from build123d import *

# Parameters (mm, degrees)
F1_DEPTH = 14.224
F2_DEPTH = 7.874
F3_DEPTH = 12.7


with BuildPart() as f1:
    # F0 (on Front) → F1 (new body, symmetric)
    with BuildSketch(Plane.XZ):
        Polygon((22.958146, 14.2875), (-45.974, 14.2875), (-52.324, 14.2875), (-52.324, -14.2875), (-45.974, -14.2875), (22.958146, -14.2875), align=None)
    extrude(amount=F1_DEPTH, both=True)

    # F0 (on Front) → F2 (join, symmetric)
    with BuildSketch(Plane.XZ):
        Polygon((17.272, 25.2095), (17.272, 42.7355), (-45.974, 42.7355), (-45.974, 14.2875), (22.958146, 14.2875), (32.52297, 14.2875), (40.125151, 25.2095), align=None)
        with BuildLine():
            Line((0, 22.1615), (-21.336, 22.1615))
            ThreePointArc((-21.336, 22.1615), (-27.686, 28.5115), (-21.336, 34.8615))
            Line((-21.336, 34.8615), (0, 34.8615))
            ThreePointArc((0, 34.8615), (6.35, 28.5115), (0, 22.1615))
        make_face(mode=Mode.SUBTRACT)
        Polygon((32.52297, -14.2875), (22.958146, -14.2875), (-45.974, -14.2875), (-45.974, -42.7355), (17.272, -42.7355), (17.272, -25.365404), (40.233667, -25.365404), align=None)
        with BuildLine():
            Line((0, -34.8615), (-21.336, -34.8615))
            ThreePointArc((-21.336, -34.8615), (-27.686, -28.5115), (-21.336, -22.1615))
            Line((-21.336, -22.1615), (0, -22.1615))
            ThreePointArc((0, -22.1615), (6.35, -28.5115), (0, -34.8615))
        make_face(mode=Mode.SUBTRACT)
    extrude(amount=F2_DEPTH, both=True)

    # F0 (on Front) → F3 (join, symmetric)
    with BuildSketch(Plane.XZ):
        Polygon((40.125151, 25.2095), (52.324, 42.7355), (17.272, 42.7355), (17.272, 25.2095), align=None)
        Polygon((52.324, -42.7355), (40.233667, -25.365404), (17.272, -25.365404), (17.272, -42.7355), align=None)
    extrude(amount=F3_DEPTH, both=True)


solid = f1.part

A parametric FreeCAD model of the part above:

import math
import FreeCAD as App
import Part
import Sketcher
from FreeCAD import Vector
Q = App.Units.Quantity

doc = App.newDocument("Part")
body = doc.addObject("PartDesign::Body", "Body")

# Sketch on XZ plane
sketch1 = doc.addObject("Sketcher::SketchObject", "Sketch")
body.addObject(sketch1)
sketch1.AttachmentSupport = (doc.XZ_Plane, [""])
sketch1.MapMode = "FlatFace"
sketch1.addGeometry([
    Part.LineSegment(Vector(23, 14, 0), Vector(-52, 14, 0)),
    Part.LineSegment(Vector(-52, 14, 0), Vector(-52, -14, 0)),
    Part.LineSegment(Vector(-52, -14, 0), Vector(23, -14, 0)),
    Part.LineSegment(Vector(23, -14, 0), Vector(23, 14, 0)),
], False)
sketch1.addConstraint([
    Sketcher.Constraint("Coincident", 0, 2, 1, 1),
    Sketcher.Constraint("Coincident", 1, 2, 2, 1),
    Sketcher.Constraint("Coincident", 2, 2, 3, 1),
    Sketcher.Constraint("Coincident", 3, 2, 0, 1),
    Sketcher.Constraint("Horizontal", 0),
    Sketcher.Constraint("Vertical", 1),
    Sketcher.Constraint("Horizontal", 2),
    Sketcher.Constraint("Vertical", 3),
    Sketcher.Constraint("DistanceY", 1, 2, 1, 1, Q("1.125 in")),
    Sketcher.Constraint("DistanceX", 0, 2, -1, 1, Q("2.06 in")),
    Sketcher.Constraint("DistanceY", -1, 1, 0, 2, Q("0.5625 in")),
    Sketcher.Constraint("DistanceX", 0, 2, 0, 1, 75.282146),
])
pad1 = doc.addObject("PartDesign::Pad", "Pad")
body.addObject(pad1)
pad1.Profile = sketch1
pad1.Length = Q("1.12 in")
pad1.Midplane = True

# Sketch on XZ plane
sketch2 = doc.addObject("Sketcher::SketchObject", "Sketch001")
body.addObject(sketch2)
sketch2.AttachmentSupport = (doc.XZ_Plane, [""])
sketch2.MapMode = "FlatFace"
sketch2.addGeometry([
    Part.LineSegment(Vector(17, 25, 0), Vector(17, 43, 0)),  # 0
    Part.LineSegment(Vector(17, 43, 0), Vector(-46, 43, 0)),  # 1
    Part.LineSegment(Vector(-46, 43, 0), Vector(-46, 14, 0)),  # 2
    Part.LineSegment(Vector(-46, 14, 0), Vector(33, 14, 0)),  # 3
    Part.LineSegment(Vector(33, 14, 0), Vector(40, 25, 0)),  # 4
    Part.LineSegment(Vector(40, 25, 0), Vector(17, 25, 0)),  # 5
    Part.ArcOfCircle(Part.Circle(Vector(0, 29, 0), Vector(0, 0, 1), 6), math.radians(-90), math.radians(90)),  # 6
    Part.LineSegment(Vector(0, 22, 0), Vector(-21, 22, 0)),  # 7
    Part.ArcOfCircle(Part.Circle(Vector(-21, 29, 0), Vector(0, 0, 1), 6), math.radians(90), math.radians(270)),  # 8
    Part.LineSegment(Vector(-21, 35, 0), Vector(0, 35, 0)),  # 9
    Part.LineSegment(Vector(33, -14, 0), Vector(-46, -14, 0)),  # 10
    Part.LineSegment(Vector(-46, -14, 0), Vector(-46, -43, 0)),  # 11
    Part.LineSegment(Vector(-46, -43, 0), Vector(17, -43, 0)),  # 12
    Part.LineSegment(Vector(17, -43, 0), Vector(17, -25, 0)),  # 13
    Part.LineSegment(Vector(17, -25, 0), Vector(40, -25, 0)),  # 14
    Part.LineSegment(Vector(40, -25, 0), Vector(33, -14, 0)),  # 15
    Part.ArcOfCircle(Part.Circle(Vector(0, -29, 0), Vector(0, 0, 1), 6), math.radians(-90), math.radians(90)),  # 16
    Part.LineSegment(Vector(0, -35, 0), Vector(-21, -35, 0)),  # 17
    Part.ArcOfCircle(Part.Circle(Vector(-21, -29, 0), Vector(0, 0, 1), 6), math.radians(90), math.radians(270)),  # 18
    Part.LineSegment(Vector(-21, -22, 0), Vector(0, -22, 0)),  # 19
], False)
sketch2.addConstraint([
    Sketcher.Constraint("Coincident", 0, 2, 1, 1),
    Sketcher.Constraint("Coincident", 1, 2, 2, 1),
    Sketcher.Constraint("Coincident", 2, 2, 3, 1),
    Sketcher.Constraint("Coincident", 3, 2, 4, 1),
    Sketcher.Constraint("Coincident", 4, 2, 5, 1),
    Sketcher.Constraint("Coincident", 5, 2, 0, 1),
    Sketcher.Constraint("Tangent", 6, 1, 7, 1),
    Sketcher.Constraint("Tangent", 7, 2, 8, 2),
    Sketcher.Constraint("Tangent", 8, 1, 9, 1),
    Sketcher.Constraint("Tangent", 9, 2, 6, 2),
    Sketcher.Constraint("Coincident", 10, 2, 11, 1),
    Sketcher.Constraint("Coincident", 11, 2, 12, 1),
    Sketcher.Constraint("Coincident", 12, 2, 13, 1),
    Sketcher.Constraint("Coincident", 13, 2, 14, 1),
    Sketcher.Constraint("Coincident", 14, 2, 15, 1),
    Sketcher.Constraint("Coincident", 15, 2, 10, 1),
    Sketcher.Constraint("Tangent", 16, 1, 17, 1),
    Sketcher.Constraint("Tangent", 17, 2, 18, 2),
    Sketcher.Constraint("Tangent", 18, 1, 19, 1),
    Sketcher.Constraint("Tangent", 19, 2, 16, 2),
    Sketcher.Constraint("Vertical", 0),
    Sketcher.Constraint("Horizontal", 1),
    Sketcher.Constraint("Vertical", 2),
    Sketcher.Constraint("Horizontal", 3),
    Sketcher.Constraint("Horizontal", 5),
    Sketcher.Constraint("Horizontal", 7),
    Sketcher.Constraint("Horizontal", 9),
    Sketcher.Constraint("Horizontal", 10),
    Sketcher.Constraint("Vertical", 11),
    Sketcher.Constraint("Horizontal", 12),
    Sketcher.Constraint("Vertical", 13),
    Sketcher.Constraint("Horizontal", 14),
    Sketcher.Constraint("Horizontal", 17),
    Sketcher.Constraint("Horizontal", 19),
    Sketcher.Constraint("Equal", 8, 16),
    Sketcher.Constraint("Symmetric", 6, 3, 16, 3, -1, 1),
    Sketcher.Constraint("Symmetric", 2, 2, 10, 2, -1),
    Sketcher.Constraint("Symmetric", 0, 2, 12, 2, -1),
    Sketcher.Constraint("PointOnObject", 6, 3, -2),
    Sketcher.Constraint("Vertical", 8, 3, 18, 3),
    Sketcher.Constraint("Vertical", 3, 2, 15, 2),
    Sketcher.Constraint("Radius", 6, Q("0.25 in")),
    Sketcher.Constraint("DistanceX", 1, 2, 1, 1, Q("2.49 in")),
    Sketcher.Constraint("DistanceX", 7, 2, 7, 1, Q("0.84 in")),
    Sketcher.Constraint("DistanceY", 0, 1, 0, 2, Q("0.69 in")),
    Sketcher.Constraint("DistanceY", 2, 2, 2, 1, Q("1.12 in")),
    Sketcher.Constraint("DistanceX", -1, 1, 0, 2, Q("0.68 in")),
    Sketcher.Constraint("DistanceY", 6, 3, 0, 2, Q("0.56 in")),
    Sketcher.Constraint("DistanceY", -1, 1, 2, 2, Q("0.5625 in")),
    Sketcher.Constraint("DistanceX", 3, 1, 3, 2, 78.49697),
    Sketcher.Constraint("DistanceX", 5, 2, 5, 1, 22.853151),
    Sketcher.Constraint("DistanceX", 14, 1, 14, 2, 22.961667),
    Sketcher.Constraint("DistanceY", 13, 1, 13, 2, 17.370096),
])
pad2 = doc.addObject("PartDesign::Pad", "Pad001")
body.addObject(pad2)
pad2.Profile = sketch2
pad2.Length = Q("0.62 in")
pad2.Midplane = True

# Sketch on XZ plane
sketch3 = doc.addObject("Sketcher::SketchObject", "Sketch002")
body.addObject(sketch3)
sketch3.AttachmentSupport = (doc.XZ_Plane, [""])
sketch3.MapMode = "FlatFace"
sketch3.addGeometry([
    Part.LineSegment(Vector(40, 25, 0), Vector(52, 43, 0)),  # 0
    Part.LineSegment(Vector(52, 43, 0), Vector(17, 43, 0)),  # 1
    Part.LineSegment(Vector(17, 43, 0), Vector(17, 25, 0)),  # 2
    Part.LineSegment(Vector(17, 25, 0), Vector(40, 25, 0)),  # 3
    Part.LineSegment(Vector(52, -43, 0), Vector(40, -25, 0)),  # 4
    Part.LineSegment(Vector(40, -25, 0), Vector(17, -25, 0)),  # 5
    Part.LineSegment(Vector(17, -25, 0), Vector(17, -43, 0)),  # 6
    Part.LineSegment(Vector(17, -43, 0), Vector(52, -43, 0)),  # 7
], False)
sketch3.addConstraint([
    Sketcher.Constraint("Coincident", 0, 2, 1, 1),
    Sketcher.Constraint("Coincident", 1, 2, 2, 1),
    Sketcher.Constraint("Coincident", 2, 2, 3, 1),
    Sketcher.Constraint("Coincident", 3, 2, 0, 1),
    Sketcher.Constraint("Coincident", 4, 2, 5, 1),
    Sketcher.Constraint("Coincident", 5, 2, 6, 1),
    Sketcher.Constraint("Coincident", 6, 2, 7, 1),
    Sketcher.Constraint("Coincident", 7, 2, 4, 1),
    Sketcher.Constraint("Horizontal", 1),
    Sketcher.Constraint("Vertical", 2),
    Sketcher.Constraint("Horizontal", 3),
    Sketcher.Constraint("Horizontal", 5),
    Sketcher.Constraint("Vertical", 6),
    Sketcher.Constraint("Horizontal", 7),
    Sketcher.Constraint("Symmetric", 1, 2, 6, 2, -1),
    Sketcher.Constraint("Vertical", 0, 2, 7, 2),
    Sketcher.Constraint("DistanceX", 1, 2, 1, 1, Q("1.38 in")),
    Sketcher.Constraint("DistanceY", 2, 2, 2, 1, Q("0.69 in")),
    Sketcher.Constraint("DistanceX", -1, 1, 0, 2, Q("2.06 in")),
    Sketcher.Constraint("DistanceY", 6, 2, 2, 2, Q("2.675 in")),
    Sketcher.Constraint("DistanceX", 3, 1, 3, 2, 22.853151),
    Sketcher.Constraint("DistanceX", 5, 2, 5, 1, 22.961667),
    Sketcher.Constraint("DistanceY", 6, 2, 6, 1, 17.370096),
])
pad3 = doc.addObject("PartDesign::Pad", "Pad002")
body.addObject(pad3)
pad3.Profile = sketch3
pad3.Length = Q("1 in")
pad3.Midplane = True

doc.recompute()
